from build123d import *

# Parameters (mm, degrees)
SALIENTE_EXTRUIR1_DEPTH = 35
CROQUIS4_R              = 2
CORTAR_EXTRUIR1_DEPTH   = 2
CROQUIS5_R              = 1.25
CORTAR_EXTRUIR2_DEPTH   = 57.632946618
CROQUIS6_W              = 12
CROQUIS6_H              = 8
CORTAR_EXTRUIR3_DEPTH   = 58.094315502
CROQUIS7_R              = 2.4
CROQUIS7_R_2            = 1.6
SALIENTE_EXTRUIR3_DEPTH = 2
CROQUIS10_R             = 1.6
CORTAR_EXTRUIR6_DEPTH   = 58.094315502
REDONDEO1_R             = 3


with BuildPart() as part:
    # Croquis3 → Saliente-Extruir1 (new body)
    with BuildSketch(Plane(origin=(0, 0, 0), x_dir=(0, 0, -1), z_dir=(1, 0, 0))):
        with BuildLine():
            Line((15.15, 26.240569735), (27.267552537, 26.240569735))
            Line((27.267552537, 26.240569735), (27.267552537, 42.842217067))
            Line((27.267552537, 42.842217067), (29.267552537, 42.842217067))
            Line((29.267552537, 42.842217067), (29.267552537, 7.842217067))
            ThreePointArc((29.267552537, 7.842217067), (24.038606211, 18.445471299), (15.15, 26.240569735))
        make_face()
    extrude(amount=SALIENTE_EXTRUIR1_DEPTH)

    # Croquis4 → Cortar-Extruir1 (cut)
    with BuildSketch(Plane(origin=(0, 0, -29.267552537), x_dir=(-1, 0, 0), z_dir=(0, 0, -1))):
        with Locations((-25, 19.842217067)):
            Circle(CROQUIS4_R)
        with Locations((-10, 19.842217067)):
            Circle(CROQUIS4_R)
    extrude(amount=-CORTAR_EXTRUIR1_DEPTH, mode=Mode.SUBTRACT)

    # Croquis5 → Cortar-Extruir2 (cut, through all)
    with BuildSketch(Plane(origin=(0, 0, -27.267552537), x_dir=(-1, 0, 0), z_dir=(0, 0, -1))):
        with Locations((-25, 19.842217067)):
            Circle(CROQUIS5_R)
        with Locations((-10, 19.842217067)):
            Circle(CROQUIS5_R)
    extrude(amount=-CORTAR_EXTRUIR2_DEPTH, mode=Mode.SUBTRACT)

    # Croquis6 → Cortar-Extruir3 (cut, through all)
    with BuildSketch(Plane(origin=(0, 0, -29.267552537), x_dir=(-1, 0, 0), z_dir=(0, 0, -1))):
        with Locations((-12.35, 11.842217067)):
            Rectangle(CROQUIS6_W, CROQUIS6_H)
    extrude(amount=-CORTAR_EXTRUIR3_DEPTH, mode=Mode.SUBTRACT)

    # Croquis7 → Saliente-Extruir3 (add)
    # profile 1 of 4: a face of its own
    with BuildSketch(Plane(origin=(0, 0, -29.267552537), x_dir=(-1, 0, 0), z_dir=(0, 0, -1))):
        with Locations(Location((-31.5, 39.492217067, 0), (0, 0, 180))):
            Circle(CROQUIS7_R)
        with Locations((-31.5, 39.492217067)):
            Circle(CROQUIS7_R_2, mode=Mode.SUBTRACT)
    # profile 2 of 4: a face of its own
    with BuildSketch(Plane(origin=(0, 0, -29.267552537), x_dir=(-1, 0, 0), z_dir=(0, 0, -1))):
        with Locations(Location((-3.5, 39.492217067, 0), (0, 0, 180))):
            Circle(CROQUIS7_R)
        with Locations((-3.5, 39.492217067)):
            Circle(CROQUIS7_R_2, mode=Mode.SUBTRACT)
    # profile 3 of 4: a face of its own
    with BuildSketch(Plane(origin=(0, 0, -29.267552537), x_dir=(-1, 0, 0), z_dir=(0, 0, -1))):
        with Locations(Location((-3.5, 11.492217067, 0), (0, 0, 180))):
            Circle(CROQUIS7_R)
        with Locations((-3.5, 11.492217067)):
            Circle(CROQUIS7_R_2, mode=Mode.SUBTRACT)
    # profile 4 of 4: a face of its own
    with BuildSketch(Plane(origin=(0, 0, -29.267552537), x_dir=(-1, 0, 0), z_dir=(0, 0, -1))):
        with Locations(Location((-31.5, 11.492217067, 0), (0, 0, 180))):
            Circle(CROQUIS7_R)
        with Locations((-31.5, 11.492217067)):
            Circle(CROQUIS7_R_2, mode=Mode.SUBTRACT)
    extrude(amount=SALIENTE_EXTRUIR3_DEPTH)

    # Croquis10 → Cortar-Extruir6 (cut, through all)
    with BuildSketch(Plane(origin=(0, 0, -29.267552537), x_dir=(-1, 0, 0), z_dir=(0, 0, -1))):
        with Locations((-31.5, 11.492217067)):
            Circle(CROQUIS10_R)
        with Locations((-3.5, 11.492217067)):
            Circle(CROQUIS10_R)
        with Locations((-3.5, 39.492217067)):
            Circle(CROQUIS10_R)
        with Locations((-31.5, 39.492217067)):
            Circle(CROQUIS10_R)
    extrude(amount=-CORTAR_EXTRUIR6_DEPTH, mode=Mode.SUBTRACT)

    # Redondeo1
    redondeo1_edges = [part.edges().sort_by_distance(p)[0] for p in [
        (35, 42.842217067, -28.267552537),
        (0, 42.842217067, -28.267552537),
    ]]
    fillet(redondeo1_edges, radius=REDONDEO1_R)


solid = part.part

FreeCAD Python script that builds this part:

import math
import FreeCAD as App
import Part
import Sketcher

V = App.Vector
Q = App.Units.Quantity


def edges_at(feature, points):
    """Names of the edges that pass closest to the given points."""
    edges = feature.Shape.Edges
    near = lambda p: min(range(len(edges)), key=lambda i: edges[i].distToShape(Part.Vertex(*p))[0])
    return sorted({f"Edge{near(p) + 1}" for p in points})

doc = App.newDocument("Part")
body = doc.addObject("PartDesign::Body", "Body")

sketch1 = doc.addObject("Sketcher::SketchObject", "Sketch")
body.addObject(sketch1)
sketch1.AttachmentSupport = (doc.YZ_Plane, [""])
sketch1.MapMode = "FlatFace"
sketch1.addGeometry([
    Part.LineSegment(V(26.2, -27.3, 0), V(26.2, -15.2, 0)),
    Part.ArcOfCircle(Part.Circle(V(0, 0, 0), V(0, 0, 1), 30.3), math.radians(-75), math.radians(-30)),
    Part.LineSegment(V(7.8, -29.3, 0), V(42.8, -29.3, 0)),
    Part.LineSegment(V(42.8, -29.3, 0), V(42.8, -27.3, 0)),
    Part.LineSegment(V(42.8, -27.3, 0), V(26.2, -27.3, 0)),
], False)
sketch1.addConstraint([
    Sketcher.Constraint("Coincident", 0, 2, 1, 2),
    Sketcher.Constraint("Coincident", 1, 1, 2, 1),
    Sketcher.Constraint("Coincident", 2, 2, 3, 1),
    Sketcher.Constraint("Coincident", 3, 2, 4, 1),
    Sketcher.Constraint("Coincident", 4, 2, 0, 1),
    Sketcher.Constraint("Vertical", 0),
    Sketcher.Constraint("Horizontal", 2),
    Sketcher.Constraint("Vertical", 3),
    Sketcher.Constraint("Horizontal", 4),
    Sketcher.Constraint("Coincident", 1, 3, -1, 1),
    Sketcher.Constraint("Radius", 1, Q("30.3 mm")),
    Sketcher.Constraint("DistanceX", 2, 1, 2, 2, Q("35 mm")),
    Sketcher.Constraint("DistanceY", 3, 1, 3, 2, Q("2 mm")),
    Sketcher.Constraint("DistanceY", 0, 2, -1, 1, Q("15.15 mm")),
    Sketcher.Constraint("DistanceX", 4, 2, 4, 1, Q("16.601647 mm")),
])
pad1 = doc.addObject("PartDesign::Pad", "Pad")
body.addObject(pad1)
pad1.Profile = sketch1
pad1.Length = 35

sketch2 = doc.addObject("Sketcher::SketchObject", "Sketch001")
body.addObject(sketch2)
sketch2.AttachmentSupport = (doc.XY_Plane, [""])
sketch2.MapMode = "FlatFace"
sketch2.AttachmentOffset = App.Placement(V(0, 0, -29.267553), App.Rotation())
sketch2.addGeometry([
    Part.Circle(V(25, 19.8, 0), V(0, 0, 1), 2),
    Part.Circle(V(10, 19.8, 0), V(0, 0, 1), 2),
], False)
sketch2.addConstraint([
    Sketcher.Constraint("Equal", 0, 1),
    Sketcher.Constraint("Horizontal", 0, 3, 1, 3),
    Sketcher.Constraint("Diameter", 0, Q("4 mm")),
    Sketcher.Constraint("DistanceX", -1, 1, 0, 3, Q("25 mm")),
    Sketcher.Constraint("DistanceX", -1, 1, 1, 3, Q("10 mm")),
    Sketcher.Constraint("DistanceY", -1, 1, 0, 3, Q("19.842217 mm")),
])
pocket1 = doc.addObject("PartDesign::Pocket", "Pocket")
body.addObject(pocket1)
pocket1.Profile = sketch2
pocket1.Length = 2
pocket1.Reversed = True

sketch3 = doc.addObject("Sketcher::SketchObject", "Sketch002")
body.addObject(sketch3)
sketch3.AttachmentSupport = (doc.XY_Plane, [""])
sketch3.MapMode = "FlatFace"
sketch3.AttachmentOffset = App.Placement(V(0, 0, -27.267553), App.Rotation())
sketch3.addGeometry([
    Part.Circle(V(25, 19.8, 0), V(0, 0, 1), 1.2),
    Part.Circle(V(10, 19.8, 0), V(0, 0, 1), 1.2),
], False)
sketch3.addConstraint([
    Sketcher.Constraint("Equal", 0, 1),
    Sketcher.Constraint("Horizontal", 0, 3, 1, 3),
    Sketcher.Constraint("Diameter", 0, Q("2.5 mm")),
    Sketcher.Constraint("DistanceX", -1, 1, 0, 3, Q("25 mm")),
    Sketcher.Constraint("DistanceX", -1, 1, 1, 3, Q("10 mm")),
    Sketcher.Constraint("DistanceY", -1, 1, 0, 3, Q("19.842217 mm")),
])
pocket2 = doc.addObject("PartDesign::Pocket", "Pocket001")
body.addObject(pocket2)
pocket2.Profile = sketch3
pocket2.Type = "ThroughAll"
pocket2.Reversed = True

sketch4 = doc.addObject("Sketcher::SketchObject", "Sketch003")
body.addObject(sketch4)
sketch4.AttachmentSupport = (doc.XY_Plane, [""])
sketch4.MapMode = "FlatFace"
sketch4.AttachmentOffset = App.Placement(V(0, 0, -29.267553), App.Rotation())
sketch4.addGeometry([
    Part.LineSegment(V(18, 16, 0), V(18, 8, 0)),
    Part.LineSegment(V(18, 8, 0), V(6, 8, 0)),
    Part.LineSegment(V(6, 8, 0), V(6, 16, 0)),
    Part.LineSegment(V(6, 16, 0), V(18, 16, 0)),
], False)
sketch4.addConstraint([
    Sketcher.Constraint("Coincident", 0, 2, 1, 1),
    Sketcher.Constraint("Coincident", 1, 2, 2, 1),
    Sketcher.Constraint("Coincident", 2, 2, 3, 1),
    Sketcher.Constraint("Coincident", 3, 2, 0, 1),
    Sketcher.Constraint("Vertical", 0),
    Sketcher.Constraint("Horizontal", 1),
    Sketcher.Constraint("Vertical", 2),
    Sketcher.Constraint("Horizontal", 3),
    Sketcher.Constraint("DistanceX", 1, 2, 1, 1, Q("12 mm")),
    Sketcher.Constraint("DistanceY", 0, 2, 0, 1, Q("8 mm")),
    Sketcher.Constraint("DistanceX", -1, 1, 0, 2, Q("18.35 mm")),
    Sketcher.Constraint("DistanceY", -1, 1, 0, 2, Q("7.842217 mm")),
])
pocket3 = doc.addObject("PartDesign::Pocket", "Pocket002")
body.addObject(pocket3)
pocket3.Profile = sketch4
pocket3.Type = "ThroughAll"
pocket3.Reversed = True

sketch5 = doc.addObject("Sketcher::SketchObject", "Sketch004")
body.addObject(sketch5)
sketch5.AttachmentSupport = (doc.XY_Plane, [""])
sketch5.MapMode = "FlatFace"
sketch5.AttachmentOffset = App.Placement(V(0, 0, -29.267553), App.Rotation())
sketch5.addGeometry([
    Part.Circle(V(31.5, 39.5, 0), V(0, 0, 1), 2.4),
    Part.Circle(V(31.5, 39.5, 0), V(0, 0, 1), 1.6),
    Part.Circle(V(3.5, 39.5, 0), V(0, 0, 1), 2.4),
    Part.Circle(V(3.5, 39.5, 0), V(0, 0, 1), 1.6),
    Part.Circle(V(3.5, 11.5, 0), V(0, 0, 1), 2.4),
    Part.Circle(V(3.5, 11.5, 0), V(0, 0, 1), 1.6),
    Part.Circle(V(31.5, 11.5, 0), V(0, 0, 1), 2.4),
    Part.Circle(V(31.5, 11.5, 0), V(0, 0, 1), 1.6),
], False)
sketch5.addConstraint([
    Sketcher.Constraint("Coincident", 1, 3, 0, 3),
    Sketcher.Constraint("Coincident", 3, 3, 2, 3),
    Sketcher.Constraint("Coincident", 5, 3, 4, 3),
    Sketcher.Constraint("Coincident", 7, 3, 6, 3),
    Sketcher.Constraint("Equal", 0, 2),
    Sketcher.Constraint("Equal", 1, 3),
    Sketcher.Constraint("Equal", 2, 4),
    Sketcher.Constraint("Equal", 3, 5),
    Sketcher.Constraint("Equal", 4, 6),
    Sketcher.Constraint("Equal", 5, 7),
    Sketcher.Constraint("Horizontal", 1, 3, 2, 3),
    Sketcher.Constraint("Horizontal", 5, 3, 6, 3),
    Sketcher.Constraint("Vertical", 3, 3, 4, 3),
    Sketcher.Constraint("Vertical", 1, 3, 6, 3),
    Sketcher.Constraint("Diameter", 0, Q("4.8 mm")),
    Sketcher.Constraint("Diameter", 1, Q("3.2 mm")),
    Sketcher.Constraint("DistanceX", 2, 3, 0, 3, Q("28 mm")),
    Sketcher.Constraint("DistanceY", 4, 3, 2, 3, Q("28 mm")),
    Sketcher.Constraint("DistanceX", -1, 1, 0, 3, Q("31.5 mm")),
    Sketcher.Constraint("DistanceY", -1, 1, 0, 3, Q("39.492217 mm")),
])
pad2 = doc.addObject("PartDesign::Pad", "Pad001")
body.addObject(pad2)
pad2.Profile = sketch5
pad2.Length = 2
pad2.Reversed = True

sketch6 = doc.addObject("Sketcher::SketchObject", "Sketch005")
body.addObject(sketch6)
sketch6.AttachmentSupport = (doc.XY_Plane, [""])
sketch6.MapMode = "FlatFace"
sketch6.AttachmentOffset = App.Placement(V(0, 0, -29.267553), App.Rotation())
sketch6.addGeometry([
    Part.Circle(V(31.5, 11.5, 0), V(0, 0, 1), 1.6),
    Part.Circle(V(3.5, 11.5, 0), V(0, 0, 1), 1.6),
    Part.Circle(V(3.5, 39.5, 0), V(0, 0, 1), 1.6),
    Part.Circle(V(31.5, 39.5, 0), V(0, 0, 1), 1.6),
], False)
sketch6.addConstraint([
    Sketcher.Constraint("Equal", 0, 1),
    Sketcher.Constraint("Equal", 1, 2),
    Sketcher.Constraint("Equal", 2, 3),
    Sketcher.Constraint("Horizontal", 0, 3, 1, 3),
    Sketcher.Constraint("Horizontal", 2, 3, 3, 3),
    Sketcher.Constraint("Vertical", 1, 3, 2, 3),
    Sketcher.Constraint("Vertical", 0, 3, 3, 3),
    Sketcher.Constraint("Diameter", 0, Q("3.2 mm")),
    Sketcher.Constraint("DistanceX", 1, 3, 0, 3, Q("28 mm")),
    Sketcher.Constraint("DistanceY", 1, 3, 2, 3, Q("28 mm")),
    Sketcher.Constraint("DistanceX", -1, 1, 0, 3, Q("31.5 mm")),
    Sketcher.Constraint("DistanceY", -1, 1, 0, 3, Q("11.492217 mm")),
])
pocket4 = doc.addObject("PartDesign::Pocket", "Pocket003")
body.addObject(pocket4)
pocket4.Profile = sketch6
pocket4.Type = "ThroughAll"
pocket4.Reversed = True
doc.recompute()

fillet = doc.addObject("PartDesign::Fillet", "Fillet")
body.addObject(fillet)
fillet.Base = (pocket4, edges_at(pocket4, [(35, 42.842, -28.268), (0, 42.842, -28.268)]))
fillet.Radius = 3

doc.recompute()
